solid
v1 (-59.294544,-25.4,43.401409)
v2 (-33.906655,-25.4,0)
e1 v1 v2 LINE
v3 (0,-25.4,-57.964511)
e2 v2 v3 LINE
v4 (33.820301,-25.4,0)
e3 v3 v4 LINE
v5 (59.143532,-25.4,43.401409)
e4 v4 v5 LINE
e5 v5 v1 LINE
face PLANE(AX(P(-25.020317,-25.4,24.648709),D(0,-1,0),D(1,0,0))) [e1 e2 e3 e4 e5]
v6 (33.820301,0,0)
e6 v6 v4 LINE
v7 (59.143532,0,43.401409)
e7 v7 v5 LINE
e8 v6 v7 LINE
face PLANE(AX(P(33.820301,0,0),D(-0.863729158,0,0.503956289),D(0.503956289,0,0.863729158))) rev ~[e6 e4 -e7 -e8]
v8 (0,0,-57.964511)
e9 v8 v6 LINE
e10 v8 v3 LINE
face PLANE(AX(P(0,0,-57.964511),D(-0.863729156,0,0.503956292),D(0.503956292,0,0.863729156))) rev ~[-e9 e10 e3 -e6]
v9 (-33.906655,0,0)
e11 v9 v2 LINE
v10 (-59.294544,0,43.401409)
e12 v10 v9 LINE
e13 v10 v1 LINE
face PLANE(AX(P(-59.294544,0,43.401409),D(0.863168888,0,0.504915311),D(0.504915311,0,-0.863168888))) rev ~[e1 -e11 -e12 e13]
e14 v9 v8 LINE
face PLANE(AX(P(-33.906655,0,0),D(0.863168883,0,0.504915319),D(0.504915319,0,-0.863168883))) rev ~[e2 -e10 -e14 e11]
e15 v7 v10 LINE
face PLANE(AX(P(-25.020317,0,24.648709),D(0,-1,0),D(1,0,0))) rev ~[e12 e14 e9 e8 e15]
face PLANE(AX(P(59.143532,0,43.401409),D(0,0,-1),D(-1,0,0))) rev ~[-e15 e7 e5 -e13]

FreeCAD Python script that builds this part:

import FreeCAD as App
import Part
import Sketcher
from FreeCAD import Vector
Q = App.Units.Quantity


def add_polygon(sketch, points):
    """Adds a closed chain of lines whose ends are joined by coincident constraints."""
    first, n = sketch.GeometryCount, len(points)
    for a, b in zip(points, points[1:] + points[:1]):
        sketch.addGeometry(Part.LineSegment(App.Vector(*a, 0), App.Vector(*b, 0)), False)
    for i in range(n):
        sketch.addConstraint(Sketcher.Constraint("Coincident", first + i, 2, first + (i + 1) % n, 1))

doc = App.newDocument("Part")
body = doc.addObject("PartDesign::Body", "Body")

sketch1 = doc.addObject("Sketcher::SketchObject", "Sketch")
body.addObject(sketch1)
sketch1.AttachmentSupport = (doc.XZ_Plane, [""])
sketch1.MapMode = "FlatFace"
add_polygon(sketch1, [(-59.294544, 43.401409), (-33.906655, 0), (0, -57.964511), (33.820301, 0), (59.143532, 43.401409)])
sketch1.addConstraint(Sketcher.Constraint("Horizontal", 4))
sketch1.addConstraint(Sketcher.Constraint("PointOnObject", 0, 2, -1))
sketch1.addConstraint(Sketcher.Constraint("PointOnObject", 1, 2, -2))
sketch1.addConstraint(Sketcher.Constraint("PointOnObject", 2, 2, -1))
sketch1.addConstraint(Sketcher.Constraint("Parallel", 0, 1))
sketch1.addConstraint(Sketcher.Constraint("Parallel", 2, 3))
sketch1.addConstraint(Sketcher.Constraint("DistanceX", -1, 1, 2, 2, Q("33.820301 mm")))
sketch1.addConstraint(Sketcher.Constraint("Distance", 0, Q("50.28148 mm")))
sketch1.addConstraint(Sketcher.Constraint("Distance", 1, Q("67.153152 mm")))
sketch1.addConstraint(Sketcher.Constraint("Distance", 2, Q("67.109592 mm")))
pad1 = doc.addObject("PartDesign::Pad", "Pad")
body.addObject(pad1)
pad1.Profile = sketch1
pad1.Length = Q("1 in")

doc.recompute()
